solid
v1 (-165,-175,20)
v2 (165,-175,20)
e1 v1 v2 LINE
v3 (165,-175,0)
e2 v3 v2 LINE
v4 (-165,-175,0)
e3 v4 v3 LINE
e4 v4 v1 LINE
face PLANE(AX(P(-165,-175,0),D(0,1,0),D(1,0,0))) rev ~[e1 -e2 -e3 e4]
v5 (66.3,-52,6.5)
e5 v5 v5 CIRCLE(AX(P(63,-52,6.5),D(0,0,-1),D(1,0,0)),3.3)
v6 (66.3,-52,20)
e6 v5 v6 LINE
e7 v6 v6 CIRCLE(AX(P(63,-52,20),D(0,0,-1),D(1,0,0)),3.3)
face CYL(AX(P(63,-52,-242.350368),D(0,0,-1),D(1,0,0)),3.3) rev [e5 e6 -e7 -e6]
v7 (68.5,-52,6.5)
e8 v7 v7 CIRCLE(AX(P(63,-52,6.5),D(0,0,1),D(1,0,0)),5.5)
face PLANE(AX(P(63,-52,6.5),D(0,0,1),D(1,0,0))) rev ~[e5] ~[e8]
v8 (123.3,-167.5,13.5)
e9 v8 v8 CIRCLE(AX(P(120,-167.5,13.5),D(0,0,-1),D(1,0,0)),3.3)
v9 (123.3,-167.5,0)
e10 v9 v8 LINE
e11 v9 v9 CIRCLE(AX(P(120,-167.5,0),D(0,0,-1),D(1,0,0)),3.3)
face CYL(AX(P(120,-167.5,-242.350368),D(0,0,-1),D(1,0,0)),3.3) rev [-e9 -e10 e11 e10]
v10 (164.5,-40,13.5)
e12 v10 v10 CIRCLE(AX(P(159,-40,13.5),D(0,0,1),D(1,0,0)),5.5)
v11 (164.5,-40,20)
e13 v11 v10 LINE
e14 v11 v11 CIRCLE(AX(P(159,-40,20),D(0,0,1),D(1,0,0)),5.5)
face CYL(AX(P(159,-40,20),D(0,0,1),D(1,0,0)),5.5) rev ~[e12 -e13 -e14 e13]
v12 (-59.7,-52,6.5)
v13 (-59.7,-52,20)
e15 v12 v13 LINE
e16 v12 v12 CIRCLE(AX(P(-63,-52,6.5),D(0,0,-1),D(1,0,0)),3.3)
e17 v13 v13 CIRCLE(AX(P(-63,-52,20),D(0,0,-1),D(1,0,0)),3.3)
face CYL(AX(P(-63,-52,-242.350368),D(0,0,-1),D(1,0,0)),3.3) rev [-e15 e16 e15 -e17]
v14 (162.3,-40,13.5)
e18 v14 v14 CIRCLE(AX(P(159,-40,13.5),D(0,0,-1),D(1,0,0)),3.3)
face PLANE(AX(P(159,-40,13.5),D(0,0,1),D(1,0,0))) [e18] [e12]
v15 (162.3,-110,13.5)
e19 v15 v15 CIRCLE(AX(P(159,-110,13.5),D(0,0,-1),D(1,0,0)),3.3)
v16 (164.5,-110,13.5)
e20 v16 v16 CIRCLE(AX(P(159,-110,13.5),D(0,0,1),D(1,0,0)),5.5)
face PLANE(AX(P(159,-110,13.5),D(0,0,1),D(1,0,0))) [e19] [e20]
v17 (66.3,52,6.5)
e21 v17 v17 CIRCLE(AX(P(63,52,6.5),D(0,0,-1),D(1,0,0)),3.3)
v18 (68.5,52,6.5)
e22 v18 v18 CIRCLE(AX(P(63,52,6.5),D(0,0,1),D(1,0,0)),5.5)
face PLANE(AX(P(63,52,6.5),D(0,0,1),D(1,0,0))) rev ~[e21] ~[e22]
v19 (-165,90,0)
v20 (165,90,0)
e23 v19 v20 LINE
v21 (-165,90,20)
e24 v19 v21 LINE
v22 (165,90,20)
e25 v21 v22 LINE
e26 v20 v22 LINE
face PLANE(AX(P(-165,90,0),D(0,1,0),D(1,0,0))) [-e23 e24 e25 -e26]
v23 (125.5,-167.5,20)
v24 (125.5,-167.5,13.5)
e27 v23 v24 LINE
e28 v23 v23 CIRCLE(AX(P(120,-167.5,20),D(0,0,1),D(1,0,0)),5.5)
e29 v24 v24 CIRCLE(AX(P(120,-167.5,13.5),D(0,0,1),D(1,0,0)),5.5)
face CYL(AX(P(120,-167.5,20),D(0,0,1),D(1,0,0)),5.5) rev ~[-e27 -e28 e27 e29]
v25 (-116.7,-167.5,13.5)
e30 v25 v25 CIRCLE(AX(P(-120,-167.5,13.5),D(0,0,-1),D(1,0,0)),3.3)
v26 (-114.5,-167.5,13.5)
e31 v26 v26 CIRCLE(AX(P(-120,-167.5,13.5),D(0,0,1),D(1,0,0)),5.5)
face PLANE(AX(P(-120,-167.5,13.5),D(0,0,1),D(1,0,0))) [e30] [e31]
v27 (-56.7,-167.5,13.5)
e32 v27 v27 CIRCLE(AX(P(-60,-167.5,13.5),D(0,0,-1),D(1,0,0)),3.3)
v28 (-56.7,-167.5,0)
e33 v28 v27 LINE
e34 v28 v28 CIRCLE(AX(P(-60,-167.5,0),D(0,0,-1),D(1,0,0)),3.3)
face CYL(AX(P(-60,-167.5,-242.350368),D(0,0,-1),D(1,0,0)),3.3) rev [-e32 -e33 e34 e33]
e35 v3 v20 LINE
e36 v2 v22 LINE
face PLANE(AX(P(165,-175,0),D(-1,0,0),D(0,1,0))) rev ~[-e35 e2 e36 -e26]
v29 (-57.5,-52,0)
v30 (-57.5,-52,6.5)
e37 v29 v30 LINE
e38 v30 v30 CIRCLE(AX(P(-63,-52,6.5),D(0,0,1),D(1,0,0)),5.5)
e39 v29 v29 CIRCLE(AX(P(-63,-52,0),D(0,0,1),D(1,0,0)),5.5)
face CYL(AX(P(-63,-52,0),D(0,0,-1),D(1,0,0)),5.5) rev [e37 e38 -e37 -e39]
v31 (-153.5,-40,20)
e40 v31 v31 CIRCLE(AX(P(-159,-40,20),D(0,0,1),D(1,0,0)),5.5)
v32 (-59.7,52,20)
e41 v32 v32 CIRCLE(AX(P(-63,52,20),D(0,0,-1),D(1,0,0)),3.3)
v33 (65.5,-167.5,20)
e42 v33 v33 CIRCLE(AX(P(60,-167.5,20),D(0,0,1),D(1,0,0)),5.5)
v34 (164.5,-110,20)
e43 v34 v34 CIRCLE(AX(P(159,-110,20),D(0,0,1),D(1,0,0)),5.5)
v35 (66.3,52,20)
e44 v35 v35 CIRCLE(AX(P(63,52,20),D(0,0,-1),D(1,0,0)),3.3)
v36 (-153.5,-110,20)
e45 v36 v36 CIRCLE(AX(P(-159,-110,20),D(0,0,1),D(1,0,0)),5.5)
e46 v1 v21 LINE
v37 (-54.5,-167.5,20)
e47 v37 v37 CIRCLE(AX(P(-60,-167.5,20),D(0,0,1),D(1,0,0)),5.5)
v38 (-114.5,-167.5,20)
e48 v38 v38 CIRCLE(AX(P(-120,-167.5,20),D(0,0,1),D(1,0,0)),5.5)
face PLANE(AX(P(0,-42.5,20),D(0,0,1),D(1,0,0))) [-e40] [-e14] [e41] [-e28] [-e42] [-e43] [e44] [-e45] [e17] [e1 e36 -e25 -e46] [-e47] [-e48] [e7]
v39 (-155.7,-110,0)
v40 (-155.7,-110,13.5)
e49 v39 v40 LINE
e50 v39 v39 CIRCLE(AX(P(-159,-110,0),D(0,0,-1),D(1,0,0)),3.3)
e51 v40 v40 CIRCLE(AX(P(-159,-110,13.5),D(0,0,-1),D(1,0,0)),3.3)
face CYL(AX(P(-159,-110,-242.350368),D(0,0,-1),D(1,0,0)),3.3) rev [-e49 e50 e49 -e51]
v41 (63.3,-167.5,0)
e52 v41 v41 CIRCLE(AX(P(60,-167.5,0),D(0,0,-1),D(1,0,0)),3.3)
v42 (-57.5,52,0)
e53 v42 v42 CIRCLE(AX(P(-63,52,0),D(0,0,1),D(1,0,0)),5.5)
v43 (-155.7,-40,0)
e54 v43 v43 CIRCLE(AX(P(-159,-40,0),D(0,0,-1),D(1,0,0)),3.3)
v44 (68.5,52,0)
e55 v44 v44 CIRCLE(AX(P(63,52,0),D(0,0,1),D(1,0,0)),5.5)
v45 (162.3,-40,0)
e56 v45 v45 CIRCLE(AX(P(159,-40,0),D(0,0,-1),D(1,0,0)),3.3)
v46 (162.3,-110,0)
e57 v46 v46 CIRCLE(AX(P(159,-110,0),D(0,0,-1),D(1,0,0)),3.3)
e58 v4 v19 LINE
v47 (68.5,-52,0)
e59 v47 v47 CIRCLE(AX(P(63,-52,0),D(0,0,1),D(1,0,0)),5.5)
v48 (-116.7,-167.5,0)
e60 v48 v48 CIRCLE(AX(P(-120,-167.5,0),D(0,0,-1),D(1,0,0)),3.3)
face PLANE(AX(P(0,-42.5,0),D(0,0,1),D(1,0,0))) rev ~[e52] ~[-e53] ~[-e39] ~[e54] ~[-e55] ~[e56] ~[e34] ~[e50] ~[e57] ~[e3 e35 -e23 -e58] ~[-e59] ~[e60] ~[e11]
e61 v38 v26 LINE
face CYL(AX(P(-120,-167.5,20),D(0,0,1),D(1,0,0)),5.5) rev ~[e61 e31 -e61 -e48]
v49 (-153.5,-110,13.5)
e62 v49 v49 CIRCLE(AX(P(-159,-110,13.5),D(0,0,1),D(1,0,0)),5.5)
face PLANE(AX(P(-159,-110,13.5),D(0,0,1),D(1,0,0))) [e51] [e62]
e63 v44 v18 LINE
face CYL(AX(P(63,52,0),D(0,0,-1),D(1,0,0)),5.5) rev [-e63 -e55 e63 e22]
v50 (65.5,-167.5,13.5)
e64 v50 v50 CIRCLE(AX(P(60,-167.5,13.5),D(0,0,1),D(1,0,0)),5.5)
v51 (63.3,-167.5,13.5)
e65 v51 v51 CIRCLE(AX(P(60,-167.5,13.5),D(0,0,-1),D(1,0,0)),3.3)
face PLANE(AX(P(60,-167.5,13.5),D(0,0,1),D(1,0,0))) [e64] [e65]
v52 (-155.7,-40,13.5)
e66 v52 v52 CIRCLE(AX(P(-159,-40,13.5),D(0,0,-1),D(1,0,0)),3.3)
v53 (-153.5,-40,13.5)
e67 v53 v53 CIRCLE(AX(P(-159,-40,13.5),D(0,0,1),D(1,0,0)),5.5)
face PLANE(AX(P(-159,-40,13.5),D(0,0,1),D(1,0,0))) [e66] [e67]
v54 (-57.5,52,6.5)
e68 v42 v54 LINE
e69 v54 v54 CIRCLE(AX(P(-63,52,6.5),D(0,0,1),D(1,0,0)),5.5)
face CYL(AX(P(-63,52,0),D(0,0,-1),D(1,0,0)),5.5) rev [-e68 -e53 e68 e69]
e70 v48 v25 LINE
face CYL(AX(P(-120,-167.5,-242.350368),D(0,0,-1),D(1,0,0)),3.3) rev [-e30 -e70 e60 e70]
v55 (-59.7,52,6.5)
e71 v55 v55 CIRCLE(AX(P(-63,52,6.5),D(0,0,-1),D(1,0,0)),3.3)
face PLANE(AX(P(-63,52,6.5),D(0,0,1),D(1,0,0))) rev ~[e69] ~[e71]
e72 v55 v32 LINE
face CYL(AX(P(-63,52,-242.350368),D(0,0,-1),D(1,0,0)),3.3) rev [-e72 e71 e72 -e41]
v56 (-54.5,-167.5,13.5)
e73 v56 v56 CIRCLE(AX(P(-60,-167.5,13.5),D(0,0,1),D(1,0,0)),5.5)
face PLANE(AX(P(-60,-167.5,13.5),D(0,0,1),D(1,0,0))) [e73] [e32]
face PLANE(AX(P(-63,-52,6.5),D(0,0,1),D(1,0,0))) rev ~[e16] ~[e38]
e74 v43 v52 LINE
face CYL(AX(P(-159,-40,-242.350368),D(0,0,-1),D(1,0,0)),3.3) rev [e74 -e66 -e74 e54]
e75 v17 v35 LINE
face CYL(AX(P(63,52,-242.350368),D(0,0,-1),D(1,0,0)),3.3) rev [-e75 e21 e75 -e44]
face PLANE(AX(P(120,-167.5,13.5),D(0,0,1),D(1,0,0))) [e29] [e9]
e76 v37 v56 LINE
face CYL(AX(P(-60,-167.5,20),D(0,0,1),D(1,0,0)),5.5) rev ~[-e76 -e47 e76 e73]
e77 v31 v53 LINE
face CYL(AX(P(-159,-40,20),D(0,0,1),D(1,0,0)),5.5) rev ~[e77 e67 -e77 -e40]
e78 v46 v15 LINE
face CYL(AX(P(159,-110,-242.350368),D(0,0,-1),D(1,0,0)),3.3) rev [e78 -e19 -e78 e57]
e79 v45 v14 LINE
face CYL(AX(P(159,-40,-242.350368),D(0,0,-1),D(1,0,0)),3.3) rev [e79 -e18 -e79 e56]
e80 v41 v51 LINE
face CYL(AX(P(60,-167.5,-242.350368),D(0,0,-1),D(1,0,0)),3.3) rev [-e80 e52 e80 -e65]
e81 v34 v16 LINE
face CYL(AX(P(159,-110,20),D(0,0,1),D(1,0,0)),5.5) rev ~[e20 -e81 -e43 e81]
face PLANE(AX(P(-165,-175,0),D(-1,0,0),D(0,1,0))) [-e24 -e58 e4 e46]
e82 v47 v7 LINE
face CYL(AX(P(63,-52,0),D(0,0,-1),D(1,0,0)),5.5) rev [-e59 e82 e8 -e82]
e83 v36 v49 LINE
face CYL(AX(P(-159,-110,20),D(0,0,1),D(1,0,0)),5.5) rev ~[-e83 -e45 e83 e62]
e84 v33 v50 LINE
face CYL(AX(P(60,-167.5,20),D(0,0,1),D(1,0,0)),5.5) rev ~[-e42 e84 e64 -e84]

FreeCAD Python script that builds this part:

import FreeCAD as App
import Part
import Sketcher
from FreeCAD import Vector
Q = App.Units.Quantity

doc = App.newDocument("Part")
body = doc.addObject("PartDesign::Body", "Body")

sketch1 = body.newObject("Sketcher::SketchObject", "Sketch")
sketch1.AttachmentSupport = (doc.getObject("XY_Plane"), [""])
sketch1.MapMode = "FlatFace"
sketch1.addGeometry([
    Part.LineSegment(Vector(-165, 90, 0), Vector(-165, -175, 0)),
    Part.LineSegment(Vector(-165, -175, 0), Vector(165, -175, 0)),
    Part.LineSegment(Vector(165, -175, 0), Vector(165, 90, 0)),
    Part.LineSegment(Vector(165, 90, 0), Vector(-165, 90, 0)),
], False)
sketch1.addConstraint([
    Sketcher.Constraint("Coincident", 0, 2, 1, 1),
    Sketcher.Constraint("Coincident", 1, 2, 2, 1),
    Sketcher.Constraint("Coincident", 2, 2, 3, 1),
    Sketcher.Constraint("Coincident", 3, 2, 0, 1),
    Sketcher.Constraint("Vertical", 0),
    Sketcher.Constraint("Horizontal", 1),
    Sketcher.Constraint("Vertical", 2),
    Sketcher.Constraint("Horizontal", 3),
    Sketcher.Constraint("DistanceX", 1, 1, 1, 2, Q("330 mm")),
    Sketcher.Constraint("DistanceY", 0, 2, 0, 1, Q("265 mm")),
    Sketcher.Constraint("DistanceX", 0, 2, -1, 1, Q("165 mm")),
    Sketcher.Constraint("DistanceY", 0, 2, -1, 1, Q("175 mm")),
])
pad1 = body.newObject("PartDesign::Pad", "Pad")
pad1.Profile = sketch1
pad1.Length = 20

sketch2 = body.newObject("Sketcher::SketchObject", "Sketch001")
sketch2.AttachmentSupport = (doc.getObject("XY_Plane"), [""])
sketch2.MapMode = "FlatFace"
sketch2.addGeometry([
    Part.Circle(Vector(-63, -52, 0), Vector(0, 0, 1), 3.3),
    Part.Circle(Vector(-63, 52, 0), Vector(0, 0, 1), 3.3),
    Part.Circle(Vector(63, -52, 0), Vector(0, 0, 1), 3.3),
    Part.Circle(Vector(63, 52, 0), Vector(0, 0, 1), 3.3),
], False)
sketch2.addConstraint([
    Sketcher.Constraint("Equal", 0, 1),
    Sketcher.Constraint("Equal", 1, 2),
    Sketcher.Constraint("Equal", 2, 3),
    Sketcher.Constraint("Symmetric", 1, 3, 2, 3, -1, 1),
    Sketcher.Constraint("Symmetric", 0, 3, 3, 3, -1, 1),
    Sketcher.Constraint("Symmetric", 0, 3, 2, 3, -2),
    Sketcher.Constraint("Diameter", 0, Q("6.6 mm")),
    Sketcher.Constraint("DistanceX", 0, 3, -1, 1, Q("63 mm")),
    Sketcher.Constraint("DistanceY", 0, 3, -1, 1, Q("52 mm")),
])
pocket1 = body.newObject("PartDesign::Pocket", "Pocket")
pocket1.Profile = sketch2
pocket1.Type = "ThroughAll"
pocket1.Midplane = True

sketch3 = body.newObject("Sketcher::SketchObject", "Sketch002")
sketch3.AttachmentSupport = (doc.getObject("XY_Plane"), [""])
sketch3.MapMode = "FlatFace"
sketch3.addGeometry([
    Part.Circle(Vector(-63, -52, 0), Vector(0, 0, 1), 6),
    Part.Circle(Vector(-63, 52, 0), Vector(0, 0, 1), 6),
    Part.Circle(Vector(63, -52, 0), Vector(0, 0, 1), 6),
    Part.Circle(Vector(63, 52, 0), Vector(0, 0, 1), 6),
], False)
sketch3.addConstraint([
    Sketcher.Constraint("Equal", 0, 1),
    Sketcher.Constraint("Equal", 1, 2),
    Sketcher.Constraint("Equal", 2, 3),
    Sketcher.Constraint("Symmetric", 1, 3, 2, 3, -1, 1),
    Sketcher.Constraint("Symmetric", 0, 3, 3, 3, -1, 1),
    Sketcher.Constraint("Symmetric", 0, 3, 2, 3, -2),
    Sketcher.Constraint("Diameter", 0, Q("11 mm")),
    Sketcher.Constraint("DistanceX", 0, 3, -1, 1, Q("63 mm")),
    Sketcher.Constraint("DistanceY", 0, 3, -1, 1, Q("52 mm")),
])
pocket2 = body.newObject("PartDesign::Pocket", "Pocket001")
pocket2.Profile = sketch3
pocket2.Length = 6.5
pocket2.Reversed = True

sketch4 = body.newObject("Sketcher::SketchObject", "Sketch003")
sketch4.AttachmentSupport = (doc.getObject("XY_Plane"), [""])
sketch4.MapMode = "FlatFace"
sketch4.addGeometry([
    Part.Circle(Vector(-120, -167.5, 0), Vector(0, 0, 1), 3.3),
    Part.Circle(Vector(-60, -167.5, 0), Vector(0, 0, 1), 3.3),
    Part.Circle(Vector(60, -167.5, 0), Vector(0, 0, 1), 3.3),
    Part.Circle(Vector(120, -167.5, 0), Vector(0, 0, 1), 3.3),
], False)
sketch4.addConstraint([
    Sketcher.Constraint("Equal", 0, 1),
    Sketcher.Constraint("Equal", 1, 2),
    Sketcher.Constraint("Equal", 2, 3),
    Sketcher.Constraint("Symmetric", 1, 3, 2, 3, -2),
    Sketcher.Constraint("Symmetric", 0, 3, 3, 3, -2),
    Sketcher.Constraint("Horizontal", 0, 3, 1, 3),
    Sketcher.Constraint("Diameter", 0, Q("6.6 mm")),
    Sketcher.Constraint("DistanceX", 0, 3, -1, 1, Q("120 mm")),
    Sketcher.Constraint("DistanceX", 1, 3, -1, 1, Q("60 mm")),
    Sketcher.Constraint("DistanceY", 0, 3, -1, 1, Q("167.5 mm")),
])
pocket3 = body.newObject("PartDesign::Pocket", "Pocket002")
pocket3.Profile = sketch4
pocket3.Type = "ThroughAll"
pocket3.Midplane = True

sketch5 = body.newObject("Sketcher::SketchObject", "Sketch004")
sketch5.AttachmentSupport = (doc.getObject("XY_Plane"), [""])
sketch5.MapMode = "FlatFace"
sketch5.AttachmentOffset = App.Placement(Vector(0, 0, 20), App.Rotation())
sketch5.addGeometry([
    Part.Circle(Vector(-120, -168, 0), Vector(0, 0, 1), 6),
    Part.Circle(Vector(-60, -168, 0), Vector(0, 0, 1), 6),
    Part.Circle(Vector(60, -168, 0), Vector(0, 0, 1), 6),
    Part.Circle(Vector(120, -168, 0), Vector(0, 0, 1), 6),
], False)
sketch5.addConstraint([
    Sketcher.Constraint("Equal", 0, 1),
    Sketcher.Constraint("Equal", 1, 2),
    Sketcher.Constraint("Equal", 2, 3),
    Sketcher.Constraint("Symmetric", 1, 3, 2, 3, -2),
    Sketcher.Constraint("Symmetric", 0, 3, 3, 3, -2),
    Sketcher.Constraint("Horizontal", 0, 3, 1, 3),
    Sketcher.Constraint("Diameter", 0, Q("11 mm")),
    Sketcher.Constraint("DistanceX", 0, 3, -1, 1, Q("120 mm")),
    Sketcher.Constraint("DistanceX", 1, 3, -1, 1, Q("60 mm")),
    Sketcher.Constraint("DistanceY", 0, 3, -1, 1, Q("167.5 mm")),
])
pocket4 = body.newObject("PartDesign::Pocket", "Pocket003")
pocket4.Profile = sketch5
pocket4.Length = 6.5

sketch6 = body.newObject("Sketcher::SketchObject", "Sketch005")
sketch6.AttachmentSupport = (doc.getObject("XY_Plane"), [""])
sketch6.MapMode = "FlatFace"
sketch6.addGeometry([
    Part.Circle(Vector(-159, -110, 0), Vector(0, 0, 1), 3.3),
    Part.Circle(Vector(-159, -40, 0), Vector(0, 0, 1), 3.3),
    Part.Circle(Vector(159, -110, 0), Vector(0, 0, 1), 3.3),
    Part.Circle(Vector(159, -40, 0), Vector(0, 0, 1), 3.3),
], False)
sketch6.addConstraint([
    Sketcher.Constraint("Equal", 0, 1),
    Sketcher.Constraint("Equal", 1, 2),
    Sketcher.Constraint("Equal", 2, 3),
    Sketcher.Constraint("Symmetric", 0, 3, 2, 3, -2),
    Sketcher.Constraint("Symmetric", 1, 3, 3, 3, -2),
    Sketcher.Constraint("Vertical", 0, 3, 1, 3),
    Sketcher.Constraint("Diameter", 0, Q("6.6 mm")),
    Sketcher.Constraint("DistanceX", 0, 3, -1, 1, Q("159 mm")),
    Sketcher.Constraint("DistanceY", 0, 3, -1, 1, Q("110 mm")),
    Sketcher.Constraint("DistanceY", 1, 3, -1, 1, Q("40 mm")),
])
pocket5 = body.newObject("PartDesign::Pocket", "Pocket004")
pocket5.Profile = sketch6
pocket5.Type = "ThroughAll"
pocket5.Midplane = True

sketch7 = body.newObject("Sketcher::SketchObject", "Sketch006")
sketch7.AttachmentSupport = (doc.getObject("XY_Plane"), [""])
sketch7.MapMode = "FlatFace"
sketch7.AttachmentOffset = App.Placement(Vector(0, 0, 20), App.Rotation())
sketch7.addGeometry([
    Part.Circle(Vector(-159, -110, 0), Vector(0, 0, 1), 6),
    Part.Circle(Vector(-159, -40, 0), Vector(0, 0, 1), 6),
    Part.Circle(Vector(159, -110, 0), Vector(0, 0, 1), 6),
    Part.Circle(Vector(159, -40, 0), Vector(0, 0, 1), 6),
], False)
sketch7.addConstraint([
    Sketcher.Constraint("Equal", 0, 1),
    Sketcher.Constraint("Equal", 1, 2),
    Sketcher.Constraint("Equal", 2, 3),
    Sketcher.Constraint("Symmetric", 0, 3, 2, 3, -2),
    Sketcher.Constraint("Symmetric", 1, 3, 3, 3, -2),
    Sketcher.Constraint("Vertical", 0, 3, 1, 3),
    Sketcher.Constraint("Diameter", 0, Q("11 mm")),
    Sketcher.Constraint("DistanceX", 0, 3, -1, 1, Q("159 mm")),
    Sketcher.Constraint("DistanceY", 0, 3, -1, 1, Q("110 mm")),
    Sketcher.Constraint("DistanceY", 1, 3, -1, 1, Q("40 mm")),
])
pocket6 = body.newObject("PartDesign::Pocket", "Pocket005")
pocket6.Profile = sketch7
pocket6.Length = 6.5

doc.recompute()
